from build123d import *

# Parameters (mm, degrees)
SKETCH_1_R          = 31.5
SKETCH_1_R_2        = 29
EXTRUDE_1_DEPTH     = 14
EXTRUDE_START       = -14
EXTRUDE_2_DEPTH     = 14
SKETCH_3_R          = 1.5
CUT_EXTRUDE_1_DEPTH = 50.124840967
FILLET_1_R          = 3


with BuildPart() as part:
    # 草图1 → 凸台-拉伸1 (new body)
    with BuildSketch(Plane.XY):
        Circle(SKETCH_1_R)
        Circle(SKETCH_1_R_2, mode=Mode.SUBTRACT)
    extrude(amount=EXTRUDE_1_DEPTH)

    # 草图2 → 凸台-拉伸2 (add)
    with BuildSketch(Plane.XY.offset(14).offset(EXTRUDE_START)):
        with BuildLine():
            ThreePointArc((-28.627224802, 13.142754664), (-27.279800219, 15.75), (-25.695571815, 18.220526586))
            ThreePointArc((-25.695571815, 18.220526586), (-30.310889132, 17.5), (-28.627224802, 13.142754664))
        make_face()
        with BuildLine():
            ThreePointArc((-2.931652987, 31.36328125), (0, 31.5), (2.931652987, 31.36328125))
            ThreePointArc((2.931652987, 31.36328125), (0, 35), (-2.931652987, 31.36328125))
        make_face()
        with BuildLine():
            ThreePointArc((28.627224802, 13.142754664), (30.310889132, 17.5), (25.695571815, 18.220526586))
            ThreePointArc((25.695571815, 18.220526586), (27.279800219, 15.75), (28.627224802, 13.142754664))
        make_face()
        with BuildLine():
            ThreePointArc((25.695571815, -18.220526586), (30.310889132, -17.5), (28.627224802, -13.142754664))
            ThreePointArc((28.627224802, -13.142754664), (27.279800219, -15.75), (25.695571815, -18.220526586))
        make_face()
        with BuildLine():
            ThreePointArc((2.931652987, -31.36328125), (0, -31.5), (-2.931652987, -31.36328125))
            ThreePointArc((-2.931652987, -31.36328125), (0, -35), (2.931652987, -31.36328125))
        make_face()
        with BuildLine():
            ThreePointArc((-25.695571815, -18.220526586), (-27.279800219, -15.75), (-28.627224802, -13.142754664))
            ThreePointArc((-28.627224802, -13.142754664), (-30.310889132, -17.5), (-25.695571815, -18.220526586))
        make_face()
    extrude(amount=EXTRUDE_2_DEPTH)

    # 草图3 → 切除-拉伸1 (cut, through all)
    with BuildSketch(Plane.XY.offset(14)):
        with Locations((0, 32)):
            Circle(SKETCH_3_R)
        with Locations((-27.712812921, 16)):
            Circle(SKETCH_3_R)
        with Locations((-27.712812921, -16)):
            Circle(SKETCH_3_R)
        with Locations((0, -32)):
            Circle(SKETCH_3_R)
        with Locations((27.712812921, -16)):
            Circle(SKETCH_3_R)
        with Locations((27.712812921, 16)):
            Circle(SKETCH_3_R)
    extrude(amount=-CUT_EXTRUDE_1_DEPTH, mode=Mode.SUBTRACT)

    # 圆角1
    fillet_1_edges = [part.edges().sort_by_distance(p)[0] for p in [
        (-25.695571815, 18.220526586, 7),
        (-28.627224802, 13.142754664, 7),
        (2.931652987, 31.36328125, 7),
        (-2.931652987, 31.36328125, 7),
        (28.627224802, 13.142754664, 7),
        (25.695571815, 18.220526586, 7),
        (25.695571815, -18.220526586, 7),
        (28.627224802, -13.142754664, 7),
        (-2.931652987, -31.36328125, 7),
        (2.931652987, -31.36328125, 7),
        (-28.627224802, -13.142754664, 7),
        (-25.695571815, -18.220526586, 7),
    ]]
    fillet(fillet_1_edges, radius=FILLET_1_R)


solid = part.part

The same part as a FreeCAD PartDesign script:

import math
import FreeCAD as App
import Part
import Sketcher
Q = App.Units.Quantity


def edges_at(feature, points):
    """Names of the edges that pass closest to the given points."""
    edges = feature.Shape.Edges
    near = lambda p: min(range(len(edges)), key=lambda i: edges[i].distToShape(Part.Vertex(*p))[0])
    return sorted({f"Edge{near(p) + 1}" for p in points})

doc = App.newDocument("Part")
body = doc.addObject("PartDesign::Body", "Body")

sketch1 = doc.addObject("Sketcher::SketchObject", "Sketch")
body.addObject(sketch1)
sketch1.AttachmentSupport = (doc.XY_Plane, [""])
sketch1.MapMode = "FlatFace"
sketch1.addGeometry(Part.Circle(App.Vector(0, 0, 0), App.Vector(0, 0, 1), 32), False)
sketch1.addGeometry(Part.Circle(App.Vector(0, 0, 0), App.Vector(0, 0, 1), 29), False)
sketch1.addConstraint(Sketcher.Constraint("Coincident", 0, 3, -1, 1))
sketch1.addConstraint(Sketcher.Constraint("Coincident", 1, 3, -1, 1))
sketch1.addConstraint(Sketcher.Constraint("Diameter", 0, Q("63 mm")))
sketch1.addConstraint(Sketcher.Constraint("Diameter", 1, Q("58 mm")))
pad1 = doc.addObject("PartDesign::Pad", "Pad")
body.addObject(pad1)
pad1.Profile = sketch1
pad1.Length = 14

sketch2 = doc.addObject("Sketcher::SketchObject", "Sketch001")
body.addObject(sketch2)
sketch2.AttachmentSupport = (doc.XY_Plane, [""])
sketch2.MapMode = "FlatFace"
sketch2.addGeometry(Part.ArcOfCircle(Part.Circle(App.Vector(0, 0, 0), App.Vector(0, 0, 1), 31.5), math.radians(144.66), math.radians(155.34)), False)
sketch2.addGeometry(Part.ArcOfCircle(Part.Circle(App.Vector(-27.7, 16, 0), App.Vector(0, 0, 1), 3), math.radians(48), math.radians(252)), False)
sketch2.addGeometry(Part.ArcOfCircle(Part.Circle(App.Vector(0, 0, 0), App.Vector(0, 0, 1), 31.5), math.radians(84.66), math.radians(95.34)), False)
sketch2.addGeometry(Part.ArcOfCircle(Part.Circle(App.Vector(0, 32, 0), App.Vector(0, 0, 1), 3), math.radians(-12), math.radians(192)), False)
sketch2.addGeometry(Part.ArcOfCircle(Part.Circle(App.Vector(27.7, 16, 0), App.Vector(0, 0, 1), 3), math.radians(-72), math.radians(132)), False)
sketch2.addGeometry(Part.ArcOfCircle(Part.Circle(App.Vector(0, 0, 0), App.Vector(0, 0, 1), 31.5), math.radians(24.66), math.radians(35.34)), False)
sketch2.addGeometry(Part.ArcOfCircle(Part.Circle(App.Vector(27.7, -16, 0), App.Vector(0, 0, 1), 3), math.radians(-132), math.radians(72)), False)
sketch2.addGeometry(Part.ArcOfCircle(Part.Circle(App.Vector(0, 0, 0), App.Vector(0, 0, 1), 31.5), math.radians(-35.34), math.radians(-24.66)), False)
sketch2.addGeometry(Part.ArcOfCircle(Part.Circle(App.Vector(0, 0, 0), App.Vector(0, 0, 1), 31.5), math.radians(-95.34), math.radians(-84.66)), False)
sketch2.addGeometry(Part.ArcOfCircle(Part.Circle(App.Vector(0, -32, 0), App.Vector(0, 0, 1), 3), math.radians(168), math.radians(372)), False)
sketch2.addGeometry(Part.ArcOfCircle(Part.Circle(App.Vector(0, 0, 0), App.Vector(0, 0, 1), 31.5), math.radians(-155.34), math.radians(-144.66)), False)
sketch2.addGeometry(Part.ArcOfCircle(Part.Circle(App.Vector(-27.7, -16, 0), App.Vector(0, 0, 1), 3), math.radians(108), math.radians(312)), False)
sketch2.addConstraint(Sketcher.Constraint("Coincident", 0, 1, 1, 1))
sketch2.addConstraint(Sketcher.Constraint("Coincident", 1, 2, 0, 2))
sketch2.addConstraint(Sketcher.Constraint("Coincident", 2, 1, 3, 1))
sketch2.addConstraint(Sketcher.Constraint("Coincident", 3, 2, 2, 2))
sketch2.addConstraint(Sketcher.Constraint("Coincident", 4, 1, 5, 1))
sketch2.addConstraint(Sketcher.Constraint("Coincident", 5, 2, 4, 2))
sketch2.addConstraint(Sketcher.Constraint("Coincident", 6, 1, 7, 1))
sketch2.addConstraint(Sketcher.Constraint("Coincident", 7, 2, 6, 2))
sketch2.addConstraint(Sketcher.Constraint("Coincident", 8, 1, 9, 1))
sketch2.addConstraint(Sketcher.Constraint("Coincident", 9, 2, 8, 2))
sketch2.addConstraint(Sketcher.Constraint("Coincident", 10, 1, 11, 1))
sketch2.addConstraint(Sketcher.Constraint("Coincident", 11, 2, 10, 2))
sketch2.addConstraint(Sketcher.Constraint("Coincident", 0, 3, -1, 1))
sketch2.addConstraint(Sketcher.Constraint("Coincident", 2, 3, -1, 1))
sketch2.addConstraint(Sketcher.Constraint("Coincident", 5, 3, -1, 1))
sketch2.addConstraint(Sketcher.Constraint("Coincident", 7, 3, -1, 1))
sketch2.addConstraint(Sketcher.Constraint("Coincident", 8, 3, -1, 1))
sketch2.addConstraint(Sketcher.Constraint("Coincident", 10, 3, -1, 1))
sketch2.addConstraint(Sketcher.Constraint("Equal", 0, 2))
sketch2.addConstraint(Sketcher.Constraint("Equal", 1, 3))
sketch2.addConstraint(Sketcher.Constraint("Equal", 3, 4))
sketch2.addConstraint(Sketcher.Constraint("Equal", 2, 5))
sketch2.addConstraint(Sketcher.Constraint("Equal", 4, 6))
sketch2.addConstraint(Sketcher.Constraint("Equal", 5, 7))
sketch2.addConstraint(Sketcher.Constraint("Equal", 7, 8))
sketch2.addConstraint(Sketcher.Constraint("Equal", 6, 9))
sketch2.addConstraint(Sketcher.Constraint("Equal", 8, 10))
sketch2.addConstraint(Sketcher.Constraint("Equal", 9, 11))
sketch2.addConstraint(Sketcher.Constraint("Symmetric", 1, 3, 6, 3, -1, 1))
sketch2.addConstraint(Sketcher.Constraint("Symmetric", 3, 3, 9, 3, -1, 1))
sketch2.addConstraint(Sketcher.Constraint("Symmetric", 4, 3, 11, 3, -1, 1))
sketch2.addConstraint(Sketcher.Constraint("Symmetric", 1, 3, 4, 3, -2))
sketch2.addConstraint(Sketcher.Constraint("PointOnObject", 3, 3, -2))
sketch2.addConstraint(Sketcher.Constraint("Radius", 1, Q("3 mm")))
sketch2.addConstraint(Sketcher.Constraint("Radius", 0, Q("31.5 mm")))
sketch2.addConstraint(Sketcher.Constraint("DistanceY", -1, 1, 1, 3, Q("16 mm")))
sketch2.addConstraint(Sketcher.Constraint("DistanceY", -1, 1, 3, 3, Q("32 mm")))
sketch2.addConstraint(Sketcher.Constraint("DistanceX", 0, 1, -1, 1, Q("25.695572 mm")))
pad2 = doc.addObject("PartDesign::Pad", "Pad001")
body.addObject(pad2)
pad2.Profile = sketch2
pad2.Length = 14

sketch3 = doc.addObject("Sketcher::SketchObject", "Sketch002")
body.addObject(sketch3)
sketch3.AttachmentSupport = (doc.XY_Plane, [""])
sketch3.MapMode = "FlatFace"
sketch3.AttachmentOffset = App.Placement(App.Vector(0, 0, 14), App.Rotation())
sketch3.addGeometry(Part.Circle(App.Vector(0, 32, 0), App.Vector(0, 0, 1), 1.5), False)
sketch3.addGeometry(Part.Circle(App.Vector(-27.7, 16, 0), App.Vector(0, 0, 1), 1.5), False)
sketch3.addGeometry(Part.Circle(App.Vector(-27.7, -16, 0), App.Vector(0, 0, 1), 1.5), False)
sketch3.addGeometry(Part.Circle(App.Vector(0, -32, 0), App.Vector(0, 0, 1), 1.5), False)
sketch3.addGeometry(Part.Circle(App.Vector(27.7, -16, 0), App.Vector(0, 0, 1), 1.5), False)
sketch3.addGeometry(Part.Circle(App.Vector(27.7, 16, 0), App.Vector(0, 0, 1), 1.5), False)
sketch3.addConstraint(Sketcher.Constraint("Equal", 0, 1))
sketch3.addConstraint(Sketcher.Constraint("Equal", 1, 2))
sketch3.addConstraint(Sketcher.Constraint("Equal", 2, 3))
sketch3.addConstraint(Sketcher.Constraint("Equal", 3, 4))
sketch3.addConstraint(Sketcher.Constraint("Equal", 4, 5))
sketch3.addConstraint(Sketcher.Constraint("Symmetric", 0, 3, 3, 3, -1, 1))
sketch3.addConstraint(Sketcher.Constraint("Symmetric", 1, 3, 4, 3, -1, 1))
sketch3.addConstraint(Sketcher.Constraint("Symmetric", 2, 3, 5, 3, -1, 1))
sketch3.addConstraint(Sketcher.Constraint("Symmetric", 2, 3, 4, 3, -2))
sketch3.addConstraint(Sketcher.Constraint("PointOnObject", 0, 3, -2))
sketch3.addConstraint(Sketcher.Constraint("Diameter", 0, Q("3 mm")))
sketch3.addConstraint(Sketcher.Constraint("DistanceY", -1, 1, 0, 3, Q("32 mm")))
sketch3.addConstraint(Sketcher.Constraint("DistanceY", -1, 1, 1, 3, Q("16 mm")))
sketch3.addConstraint(Sketcher.Constraint("DistanceX", 1, 3, -1, 1, Q("27.712813 mm")))
pocket1 = doc.addObject("PartDesign::Pocket", "Pocket")
body.addObject(pocket1)
pocket1.Profile = sketch3
pocket1.Type = "ThroughAll"
doc.recompute()

fillet = doc.addObject("PartDesign::Fillet", "Fillet")
body.addObject(fillet)
fillet.Base = (pocket1, edges_at(pocket1, [
    (-25.696, 18.221, 7),
    (-28.627, 13.143, 7),
    (2.932, 31.363, 7),
    (-2.932, 31.363, 7),
    (28.627, 13.143, 7),
    (25.696, 18.221, 7),
    (25.696, -18.221, 7),
    (28.627, -13.143, 7),
    (-2.932, -31.363, 7),
    (2.932, -31.363, 7),
    (-28.627, -13.143, 7),
    (-25.696, -18.221, 7),
]))
fillet.Radius = 3

doc.recompute()
